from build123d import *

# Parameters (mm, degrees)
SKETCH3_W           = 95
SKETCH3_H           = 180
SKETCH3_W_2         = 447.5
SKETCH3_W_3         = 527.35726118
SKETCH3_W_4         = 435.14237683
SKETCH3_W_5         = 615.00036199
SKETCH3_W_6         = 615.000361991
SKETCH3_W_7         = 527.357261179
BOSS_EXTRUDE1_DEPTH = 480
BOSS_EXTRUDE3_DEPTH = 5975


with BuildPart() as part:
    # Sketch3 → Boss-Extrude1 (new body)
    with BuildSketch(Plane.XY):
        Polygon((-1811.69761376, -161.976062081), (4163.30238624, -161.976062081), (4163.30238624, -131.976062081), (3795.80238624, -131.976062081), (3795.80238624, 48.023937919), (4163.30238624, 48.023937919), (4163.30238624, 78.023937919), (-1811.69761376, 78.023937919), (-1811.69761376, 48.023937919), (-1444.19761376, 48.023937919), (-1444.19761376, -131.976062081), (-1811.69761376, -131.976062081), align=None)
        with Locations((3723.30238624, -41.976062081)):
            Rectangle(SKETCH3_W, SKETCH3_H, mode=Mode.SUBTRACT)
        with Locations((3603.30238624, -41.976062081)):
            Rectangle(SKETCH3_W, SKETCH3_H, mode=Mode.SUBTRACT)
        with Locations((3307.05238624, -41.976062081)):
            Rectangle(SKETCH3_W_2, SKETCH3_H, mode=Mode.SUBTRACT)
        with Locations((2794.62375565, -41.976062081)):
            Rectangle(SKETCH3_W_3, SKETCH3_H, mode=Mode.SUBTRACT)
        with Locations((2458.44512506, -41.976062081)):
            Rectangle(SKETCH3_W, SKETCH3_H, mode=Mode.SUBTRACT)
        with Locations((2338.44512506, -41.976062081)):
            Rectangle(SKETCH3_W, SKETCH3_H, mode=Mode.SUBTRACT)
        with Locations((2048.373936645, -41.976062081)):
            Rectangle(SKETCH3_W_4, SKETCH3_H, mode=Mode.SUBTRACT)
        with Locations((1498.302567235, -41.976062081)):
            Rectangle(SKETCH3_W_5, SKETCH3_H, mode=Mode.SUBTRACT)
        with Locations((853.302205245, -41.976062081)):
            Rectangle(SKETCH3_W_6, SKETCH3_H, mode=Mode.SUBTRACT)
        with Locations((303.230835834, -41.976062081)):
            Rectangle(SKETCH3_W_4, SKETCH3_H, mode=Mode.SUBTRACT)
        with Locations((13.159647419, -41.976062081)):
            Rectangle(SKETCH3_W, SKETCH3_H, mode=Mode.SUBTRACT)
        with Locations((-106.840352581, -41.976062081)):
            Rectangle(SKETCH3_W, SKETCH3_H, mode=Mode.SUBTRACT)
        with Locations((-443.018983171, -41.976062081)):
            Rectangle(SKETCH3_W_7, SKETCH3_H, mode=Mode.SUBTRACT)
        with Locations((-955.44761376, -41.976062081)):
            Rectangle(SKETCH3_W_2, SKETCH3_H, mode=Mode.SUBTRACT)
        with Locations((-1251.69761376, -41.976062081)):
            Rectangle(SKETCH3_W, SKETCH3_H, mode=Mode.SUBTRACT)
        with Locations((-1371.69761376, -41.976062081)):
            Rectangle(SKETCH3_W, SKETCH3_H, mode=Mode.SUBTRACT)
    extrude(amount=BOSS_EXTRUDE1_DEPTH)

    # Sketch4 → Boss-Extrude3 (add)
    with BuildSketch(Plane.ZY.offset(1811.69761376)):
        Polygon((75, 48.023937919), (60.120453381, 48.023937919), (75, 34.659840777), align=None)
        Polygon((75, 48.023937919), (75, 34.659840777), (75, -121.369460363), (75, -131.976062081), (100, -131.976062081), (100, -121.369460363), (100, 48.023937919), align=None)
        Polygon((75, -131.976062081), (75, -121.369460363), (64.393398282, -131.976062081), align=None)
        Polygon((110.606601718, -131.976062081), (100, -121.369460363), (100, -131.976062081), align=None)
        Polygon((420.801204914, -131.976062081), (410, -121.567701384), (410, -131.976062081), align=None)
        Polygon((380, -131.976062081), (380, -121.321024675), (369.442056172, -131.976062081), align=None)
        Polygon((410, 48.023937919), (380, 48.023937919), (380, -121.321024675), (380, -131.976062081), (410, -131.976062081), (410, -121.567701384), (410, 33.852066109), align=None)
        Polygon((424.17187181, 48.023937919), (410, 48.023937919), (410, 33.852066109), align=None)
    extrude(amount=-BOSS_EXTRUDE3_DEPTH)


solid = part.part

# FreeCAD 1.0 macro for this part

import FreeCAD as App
import Part
import Sketcher


def add_polygon(sketch, points):
    """Adds a closed chain of lines whose ends are joined by coincident constraints."""
    first, n = sketch.GeometryCount, len(points)
    for a, b in zip(points, points[1:] + points[:1]):
        sketch.addGeometry(Part.LineSegment(App.Vector(*a, 0), App.Vector(*b, 0)), False)
    for i in range(n):
        sketch.addConstraint(Sketcher.Constraint("Coincident", first + i, 2, first + (i + 1) % n, 1))

doc = App.newDocument("Part")
body = doc.addObject("PartDesign::Body", "Body")

sketch1 = body.newObject("Sketcher::SketchObject", "Sketch")
sketch1.AttachmentSupport = (doc.getObject("XY_Plane"), [""])
sketch1.MapMode = "FlatFace"
add_polygon(sketch1, [(-1811.697614, -161.976062), (4163.302386, -161.976062), (4163.302386, -131.976062), (3795.802386, -131.976062), (3795.802386, 48.023938), (4163.302386, 48.023938), (4163.302386, 78.023938), (-1811.697614, 78.023938), (-1811.697614, 48.023938), (-1444.197614, 48.023938), (-1444.197614, -131.976062), (-1811.697614, -131.976062)])
add_polygon(sketch1, [(-1324.197614, -131.976062), (-1419.197614, -131.976062), (-1419.197614, 48.023938), (-1324.197614, 48.023938)])
add_polygon(sketch1, [(-1204.197614, -131.976062), (-1299.197614, -131.976062), (-1299.197614, 48.023938), (-1204.197614, 48.023938)])
add_polygon(sketch1, [(-731.697614, -131.976062), (-1179.197614, -131.976062), (-1179.197614, 48.023938), (-731.697614, 48.023938)])
add_polygon(sketch1, [(-179.340353, -131.976062), (-706.697614, -131.976062), (-706.697614, 48.023938), (-179.340353, 48.023938)])
add_polygon(sketch1, [(-59.340353, -131.976062), (-154.340353, -131.976062), (-154.340353, 48.023938), (-59.340353, 48.023938)])
add_polygon(sketch1, [(60.659647, -131.976062), (-34.340353, -131.976062), (-34.340353, 48.023938), (60.659647, 48.023938)])
add_polygon(sketch1, [(520.802024, -131.976062), (85.659647, -131.976062), (85.659647, 48.023938), (520.802024, 48.023938)])
add_polygon(sketch1, [(1160.802386, -131.976062), (545.802024, -131.976062), (545.802024, 48.023938), (1160.802386, 48.023938)])
add_polygon(sketch1, [(1805.802748, -131.976062), (1190.802386, -131.976062), (1190.802386, 48.023938), (1805.802748, 48.023938)])
add_polygon(sketch1, [(2265.945125, -131.976062), (1830.802748, -131.976062), (1830.802748, 48.023938), (2265.945125, 48.023938)])
add_polygon(sketch1, [(2385.945125, -131.976062), (2290.945125, -131.976062), (2290.945125, 48.023938), (2385.945125, 48.023938)])
add_polygon(sketch1, [(2505.945125, -131.976062), (2410.945125, -131.976062), (2410.945125, 48.023938), (2505.945125, 48.023938)])
add_polygon(sketch1, [(3058.302386, -131.976062), (2530.945125, -131.976062), (2530.945125, 48.023938), (3058.302386, 48.023938)])
add_polygon(sketch1, [(3530.802386, -131.976062), (3083.302386, -131.976062), (3083.302386, 48.023938), (3530.802386, 48.023938)])
add_polygon(sketch1, [(3650.802386, -131.976062), (3555.802386, -131.976062), (3555.802386, 48.023938), (3650.802386, 48.023938)])
add_polygon(sketch1, [(3770.802386, -131.976062), (3675.802386, -131.976062), (3675.802386, 48.023938), (3770.802386, 48.023938)])
sketch1.addConstraint(Sketcher.Constraint("Horizontal", 0))
sketch1.addConstraint(Sketcher.Constraint("Vertical", 1))
sketch1.addConstraint(Sketcher.Constraint("Horizontal", 2))
sketch1.addConstraint(Sketcher.Constraint("Vertical", 3))
sketch1.addConstraint(Sketcher.Constraint("Horizontal", 4))
sketch1.addConstraint(Sketcher.Constraint("Vertical", 5))
sketch1.addConstraint(Sketcher.Constraint("Horizontal", 6))
sketch1.addConstraint(Sketcher.Constraint("Vertical", 7))
sketch1.addConstraint(Sketcher.Constraint("Horizontal", 8))
sketch1.addConstraint(Sketcher.Constraint("Vertical", 9))
sketch1.addConstraint(Sketcher.Constraint("Horizontal", 10))
sketch1.addConstraint(Sketcher.Constraint("Vertical", 11))
sketch1.addConstraint(Sketcher.Constraint("Horizontal", 12))
sketch1.addConstraint(Sketcher.Constraint("Vertical", 13))
sketch1.addConstraint(Sketcher.Constraint("Horizontal", 14))
sketch1.addConstraint(Sketcher.Constraint("Vertical", 15))
sketch1.addConstraint(Sketcher.Constraint("Horizontal", 16))
sketch1.addConstraint(Sketcher.Constraint("Vertical", 17))
sketch1.addConstraint(Sketcher.Constraint("Horizontal", 18))
sketch1.addConstraint(Sketcher.Constraint("Vertical", 19))
sketch1.addConstraint(Sketcher.Constraint("Horizontal", 20))
sketch1.addConstraint(Sketcher.Constraint("Vertical", 21))
sketch1.addConstraint(Sketcher.Constraint("Horizontal", 22))
sketch1.addConstraint(Sketcher.Constraint("Vertical", 23))
sketch1.addConstraint(Sketcher.Constraint("Horizontal", 24))
sketch1.addConstraint(Sketcher.Constraint("Vertical", 25))
sketch1.addConstraint(Sketcher.Constraint("Horizontal", 26))
sketch1.addConstraint(Sketcher.Constraint("Vertical", 27))
sketch1.addConstraint(Sketcher.Constraint("Horizontal", 28))
sketch1.addConstraint(Sketcher.Constraint("Vertical", 29))
sketch1.addConstraint(Sketcher.Constraint("Horizontal", 30))
sketch1.addConstraint(Sketcher.Constraint("Vertical", 31))
sketch1.addConstraint(Sketcher.Constraint("Horizontal", 32))
sketch1.addConstraint(Sketcher.Constraint("Vertical", 33))
sketch1.addConstraint(Sketcher.Constraint("Horizontal", 34))
sketch1.addConstraint(Sketcher.Constraint("Vertical", 35))
sketch1.addConstraint(Sketcher.Constraint("Horizontal", 36))
sketch1.addConstraint(Sketcher.Constraint("Vertical", 37))
sketch1.addConstraint(Sketcher.Constraint("Horizontal", 38))
sketch1.addConstraint(Sketcher.Constraint("Vertical", 39))
sketch1.addConstraint(Sketcher.Constraint("Horizontal", 40))
sketch1.addConstraint(Sketcher.Constraint("Vertical", 41))
sketch1.addConstraint(Sketcher.Constraint("Horizontal", 42))
sketch1.addConstraint(Sketcher.Constraint("Vertical", 43))
sketch1.addConstraint(Sketcher.Constraint("Horizontal", 44))
sketch1.addConstraint(Sketcher.Constraint("Vertical", 45))
sketch1.addConstraint(Sketcher.Constraint("Horizontal", 46))
sketch1.addConstraint(Sketcher.Constraint("Vertical", 47))
sketch1.addConstraint(Sketcher.Constraint("Horizontal", 48))
sketch1.addConstraint(Sketcher.Constraint("Vertical", 49))
sketch1.addConstraint(Sketcher.Constraint("Horizontal", 50))
sketch1.addConstraint(Sketcher.Constraint("Vertical", 51))
sketch1.addConstraint(Sketcher.Constraint("Horizontal", 52))
sketch1.addConstraint(Sketcher.Constraint("Vertical", 53))
sketch1.addConstraint(Sketcher.Constraint("Horizontal", 54))
sketch1.addConstraint(Sketcher.Constraint("Vertical", 55))
sketch1.addConstraint(Sketcher.Constraint("Horizontal", 56))
sketch1.addConstraint(Sketcher.Constraint("Vertical", 57))
sketch1.addConstraint(Sketcher.Constraint("Horizontal", 58))
sketch1.addConstraint(Sketcher.Constraint("Vertical", 59))
sketch1.addConstraint(Sketcher.Constraint("Horizontal", 60))
sketch1.addConstraint(Sketcher.Constraint("Vertical", 61))
sketch1.addConstraint(Sketcher.Constraint("Horizontal", 62))
sketch1.addConstraint(Sketcher.Constraint("Vertical", 63))
sketch1.addConstraint(Sketcher.Constraint("Horizontal", 64))
sketch1.addConstraint(Sketcher.Constraint("Vertical", 65))
sketch1.addConstraint(Sketcher.Constraint("Horizontal", 66))
sketch1.addConstraint(Sketcher.Constraint("Vertical", 67))
sketch1.addConstraint(Sketcher.Constraint("Horizontal", 68))
sketch1.addConstraint(Sketcher.Constraint("Vertical", 69))
sketch1.addConstraint(Sketcher.Constraint("Horizontal", 70))
sketch1.addConstraint(Sketcher.Constraint("Vertical", 71))
sketch1.addConstraint(Sketcher.Constraint("Horizontal", 72))
sketch1.addConstraint(Sketcher.Constraint("Vertical", 73))
sketch1.addConstraint(Sketcher.Constraint("Horizontal", 74))
sketch1.addConstraint(Sketcher.Constraint("Vertical", 75))
sketch1.addConstraint(Sketcher.Constraint("Horizontal", 4, 2, 7, 2))
sketch1.addConstraint(Sketcher.Constraint("Horizontal", 2, 2, 9, 2))
sketch1.addConstraint(Sketcher.Constraint("Horizontal", 10, 2, 12, 2))
sketch1.addConstraint(Sketcher.Constraint("Horizontal", 8, 2, 13, 2))
sketch1.addConstraint(Sketcher.Constraint("Horizontal", 15, 2, 16, 2))
sketch1.addConstraint(Sketcher.Constraint("Horizontal", 14, 2, 17, 2))
sketch1.addConstraint(Sketcher.Constraint("Horizontal", 19, 2, 20, 2))
sketch1.addConstraint(Sketcher.Constraint("Horizontal", 18, 2, 21, 2))
sketch1.addConstraint(Sketcher.Constraint("Horizontal", 23, 2, 24, 2))
sketch1.addConstraint(Sketcher.Constraint("Horizontal", 22, 2, 25, 2))
sketch1.addConstraint(Sketcher.Constraint("Horizontal", 27, 2, 28, 2))
sketch1.addConstraint(Sketcher.Constraint("Horizontal", 26, 2, 29, 2))
sketch1.addConstraint(Sketcher.Constraint("Horizontal", 31, 2, 32, 2))
sketch1.addConstraint(Sketcher.Constraint("Horizontal", 30, 2, 33, 2))
sketch1.addConstraint(Sketcher.Constraint("Horizontal", 35, 2, 36, 2))
sketch1.addConstraint(Sketcher.Constraint("Horizontal", 34, 2, 37, 2))
sketch1.addConstraint(Sketcher.Constraint("Horizontal", 39, 2, 40, 2))
sketch1.addConstraint(Sketcher.Constraint("Horizontal", 38, 2, 41, 2))
sketch1.addConstraint(Sketcher.Constraint("Horizontal", 43, 2, 44, 2))
sketch1.addConstraint(Sketcher.Constraint("Horizontal", 42, 2, 45, 2))
sketch1.addConstraint(Sketcher.Constraint("Horizontal", 47, 2, 48, 2))
sketch1.addConstraint(Sketcher.Constraint("Horizontal", 46, 2, 49, 2))
sketch1.addConstraint(Sketcher.Constraint("Horizontal", 51, 2, 52, 2))
sketch1.addConstraint(Sketcher.Constraint("Horizontal", 50, 2, 53, 2))
sketch1.addConstraint(Sketcher.Constraint("Horizontal", 55, 2, 56, 2))
sketch1.addConstraint(Sketcher.Constraint("Horizontal", 54, 2, 57, 2))
sketch1.addConstraint(Sketcher.Constraint("Horizontal", 59, 2, 60, 2))
sketch1.addConstraint(Sketcher.Constraint("Horizontal", 58, 2, 61, 2))
sketch1.addConstraint(Sketcher.Constraint("Horizontal", 63, 2, 64, 2))
sketch1.addConstraint(Sketcher.Constraint("Horizontal", 62, 2, 65, 2))
sketch1.addConstraint(Sketcher.Constraint("Horizontal", 67, 2, 68, 2))
sketch1.addConstraint(Sketcher.Constraint("Horizontal", 66, 2, 69, 2))
sketch1.addConstraint(Sketcher.Constraint("Horizontal", 71, 2, 72, 2))
sketch1.addConstraint(Sketcher.Constraint("Horizontal", 70, 2, 73, 2))
sketch1.addConstraint(Sketcher.Constraint("Vertical", 1, 2, 4, 2))
sketch1.addConstraint(Sketcher.Constraint("Vertical", 7, 2, 10, 2))
sketch1.addConstraint(Sketcher.Constraint("Equal", 4, 8))
sketch1.addConstraint(Sketcher.Constraint("Equal", 14, 16))
sketch1.addConstraint(Sketcher.Constraint("Equal", 18, 28))
sketch1.addConstraint(Sketcher.Constraint("Equal", 30, 32))
sketch1.addConstraint(Sketcher.Constraint("Equal", 42, 44))
sketch1.addConstraint(Sketcher.Constraint("Equal", 38, 48))
sketch1.addConstraint(Sketcher.Constraint("Equal", 34, 52))
sketch1.addConstraint(Sketcher.Constraint("Equal", 54, 56))
sketch1.addConstraint(Sketcher.Constraint("Equal", 26, 60))
sketch1.addConstraint(Sketcher.Constraint("Equal", 22, 64))
sketch1.addConstraint(Sketcher.Constraint("Equal", 58, 68))
sketch1.addConstraint(Sketcher.Constraint("Equal", 70, 72))
sketch1.addConstraint(Sketcher.Constraint("Equal", 1, 5))
sketch1.addConstraint(Sketcher.Constraint("DistanceX", 0, 1, 0, 2, 5975.0))
sketch1.addConstraint(Sketcher.Constraint("DistanceX", 12, 2, 12, 1, 95.0))
sketch1.addConstraint(Sketcher.Constraint("DistanceY", 1, 1, 1, 2, 30.0))
sketch1.addConstraint(Sketcher.Constraint("DistanceY", 3, 1, 3, 2, 180.0))
sketch1.addConstraint(Sketcher.Constraint("DistanceX", 2, 2, 2, 1, 367.5))
sketch1.addConstraint(Sketcher.Constraint("DistanceX", 20, 2, 20, 1, 447.5))
sketch1.addConstraint(Sketcher.Constraint("DistanceX", 24, 2, 24, 1, 527.357261))
sketch1.addConstraint(Sketcher.Constraint("DistanceX", 40, 2, 40, 1, 615.000362))
sketch1.addConstraint(Sketcher.Constraint("DistanceX", 36, 2, 36, 1, 435.142377))
sketch1.addConstraint(Sketcher.Constraint("DistanceX", -1, 1, 46, 2, 1805.802748))
sketch1.addConstraint(Sketcher.Constraint("DistanceX", -1, 1, 48, 2, 1830.802748))
sketch1.addConstraint(Sketcher.Constraint("DistanceX", -1, 1, 0, 2, 4163.302386))
sketch1.addConstraint(Sketcher.Constraint("DistanceY", 0, 2, -1, 1, 161.976062))
sketch1.addConstraint(Sketcher.Constraint("DistanceX", 12, 2, -1, 1, 1419.197614))
sketch1.addConstraint(Sketcher.Constraint("DistanceX", 16, 2, -1, 1, 1299.197614))
sketch1.addConstraint(Sketcher.Constraint("DistanceX", 20, 2, -1, 1, 1179.197614))
sketch1.addConstraint(Sketcher.Constraint("DistanceX", 24, 2, -1, 1, 706.697614))
sketch1.addConstraint(Sketcher.Constraint("DistanceX", 28, 2, -1, 1, 154.340353))
sketch1.addConstraint(Sketcher.Constraint("DistanceX", 32, 2, -1, 1, 34.340353))
sketch1.addConstraint(Sketcher.Constraint("DistanceX", -1, 1, 36, 2, 85.659647))
sketch1.addConstraint(Sketcher.Constraint("DistanceX", -1, 1, 40, 2, 545.802024))
sketch1.addConstraint(Sketcher.Constraint("DistanceX", -1, 1, 52, 2, 2290.945125))
sketch1.addConstraint(Sketcher.Constraint("DistanceX", -1, 1, 56, 2, 2410.945125))
sketch1.addConstraint(Sketcher.Constraint("DistanceX", -1, 1, 60, 2, 2530.945125))
sketch1.addConstraint(Sketcher.Constraint("DistanceX", -1, 1, 64, 2, 3083.302386))
sketch1.addConstraint(Sketcher.Constraint("DistanceX", -1, 1, 68, 2, 3555.802386))
sketch1.addConstraint(Sketcher.Constraint("DistanceX", -1, 1, 72, 2, 3675.802386))
pad1 = body.newObject("PartDesign::Pad", "Pad")
pad1.Profile = sketch1
pad1.Length = 480

sketch2 = body.newObject("Sketcher::SketchObject", "Sketch001")
sketch2.AttachmentSupport = (doc.getObject("YZ_Plane"), [""])
sketch2.MapMode = "FlatFace"
sketch2.AttachmentOffset = App.Placement(App.Vector(0, 0, -1811.697614), App.Rotation())
add_polygon(sketch2, [(48.023938, 60.120453), (34.659841, 75), (-121.36946, 75), (-131.976062, 64.393398), (-131.976062, 110.606602), (-121.36946, 100), (48.023938, 100)])
add_polygon(sketch2, [(-131.976062, 420.801205), (-121.567701, 410), (33.852066, 410), (48.023938, 424.171872), (48.023938, 380), (-121.321025, 380), (-131.976062, 369.442056)])
sketch2.addConstraint(Sketcher.Constraint("Horizontal", 1))
sketch2.addConstraint(Sketcher.Constraint("Vertical", 3))
sketch2.addConstraint(Sketcher.Constraint("Horizontal", 5))
sketch2.addConstraint(Sketcher.Constraint("Vertical", 6))
sketch2.addConstraint(Sketcher.Constraint("Horizontal", 8))
sketch2.addConstraint(Sketcher.Constraint("Vertical", 10))
sketch2.addConstraint(Sketcher.Constraint("Horizontal", 11))
sketch2.addConstraint(Sketcher.Constraint("Vertical", 13))
sketch2.addConstraint(Sketcher.Constraint("Perpendicular", 2, 4))
sketch2.addConstraint(Sketcher.Constraint("Perpendicular", 4, 9))
sketch2.addConstraint(Sketcher.Constraint("Vertical", 1, 2, 4, 2))
sketch2.addConstraint(Sketcher.Constraint("Vertical", 6, 2, 9, 2))
sketch2.addConstraint(Sketcher.Constraint("Vertical", 3, 2, 12, 2))
sketch2.addConstraint(Sketcher.Constraint("Equal", 2, 4))
sketch2.addConstraint(Sketcher.Constraint("Equal", 4, 7))
sketch2.addConstraint(Sketcher.Constraint("Equal", 7, 12))
sketch2.addConstraint(Sketcher.Constraint("Distance", 0, 20.0))
sketch2.addConstraint(Sketcher.Constraint("Distance", 2, 15.0))
sketch2.addConstraint(Sketcher.Constraint("DistanceY", -1, 1, 0, 2, 75.0))
sketch2.addConstraint(Sketcher.Constraint("DistanceY", -1, 1, 4, 2, 100.0))
sketch2.addConstraint(Sketcher.Constraint("DistanceY", -1, 1, 7, 2, 410.0))
sketch2.addConstraint(Sketcher.Constraint("DistanceY", -1, 1, 10, 2, 380.0))
sketch2.addConstraint(Sketcher.Constraint("DistanceX", 3, 2, 5, 2, 180.0))
sketch2.addConstraint(Sketcher.Constraint("DistanceX", 1, 2, 1, 1, 156.029301))
sketch2.addConstraint(Sketcher.Constraint("DistanceY", 10, 2, 10, 1, 44.171872))
sketch2.addConstraint(Sketcher.Constraint("DistanceY", 13, 1, 13, 2, 51.359149))
sketch2.addConstraint(Sketcher.Constraint("DistanceX", 7, 2, -1, 1, 121.567701))
sketch2.addConstraint(Sketcher.Constraint("DistanceX", 8, 1, 8, 2, 155.419767))
pad2 = body.newObject("PartDesign::Pad", "Pad001")
pad2.Profile = sketch2
pad2.Length = 5975

doc.recompute()
